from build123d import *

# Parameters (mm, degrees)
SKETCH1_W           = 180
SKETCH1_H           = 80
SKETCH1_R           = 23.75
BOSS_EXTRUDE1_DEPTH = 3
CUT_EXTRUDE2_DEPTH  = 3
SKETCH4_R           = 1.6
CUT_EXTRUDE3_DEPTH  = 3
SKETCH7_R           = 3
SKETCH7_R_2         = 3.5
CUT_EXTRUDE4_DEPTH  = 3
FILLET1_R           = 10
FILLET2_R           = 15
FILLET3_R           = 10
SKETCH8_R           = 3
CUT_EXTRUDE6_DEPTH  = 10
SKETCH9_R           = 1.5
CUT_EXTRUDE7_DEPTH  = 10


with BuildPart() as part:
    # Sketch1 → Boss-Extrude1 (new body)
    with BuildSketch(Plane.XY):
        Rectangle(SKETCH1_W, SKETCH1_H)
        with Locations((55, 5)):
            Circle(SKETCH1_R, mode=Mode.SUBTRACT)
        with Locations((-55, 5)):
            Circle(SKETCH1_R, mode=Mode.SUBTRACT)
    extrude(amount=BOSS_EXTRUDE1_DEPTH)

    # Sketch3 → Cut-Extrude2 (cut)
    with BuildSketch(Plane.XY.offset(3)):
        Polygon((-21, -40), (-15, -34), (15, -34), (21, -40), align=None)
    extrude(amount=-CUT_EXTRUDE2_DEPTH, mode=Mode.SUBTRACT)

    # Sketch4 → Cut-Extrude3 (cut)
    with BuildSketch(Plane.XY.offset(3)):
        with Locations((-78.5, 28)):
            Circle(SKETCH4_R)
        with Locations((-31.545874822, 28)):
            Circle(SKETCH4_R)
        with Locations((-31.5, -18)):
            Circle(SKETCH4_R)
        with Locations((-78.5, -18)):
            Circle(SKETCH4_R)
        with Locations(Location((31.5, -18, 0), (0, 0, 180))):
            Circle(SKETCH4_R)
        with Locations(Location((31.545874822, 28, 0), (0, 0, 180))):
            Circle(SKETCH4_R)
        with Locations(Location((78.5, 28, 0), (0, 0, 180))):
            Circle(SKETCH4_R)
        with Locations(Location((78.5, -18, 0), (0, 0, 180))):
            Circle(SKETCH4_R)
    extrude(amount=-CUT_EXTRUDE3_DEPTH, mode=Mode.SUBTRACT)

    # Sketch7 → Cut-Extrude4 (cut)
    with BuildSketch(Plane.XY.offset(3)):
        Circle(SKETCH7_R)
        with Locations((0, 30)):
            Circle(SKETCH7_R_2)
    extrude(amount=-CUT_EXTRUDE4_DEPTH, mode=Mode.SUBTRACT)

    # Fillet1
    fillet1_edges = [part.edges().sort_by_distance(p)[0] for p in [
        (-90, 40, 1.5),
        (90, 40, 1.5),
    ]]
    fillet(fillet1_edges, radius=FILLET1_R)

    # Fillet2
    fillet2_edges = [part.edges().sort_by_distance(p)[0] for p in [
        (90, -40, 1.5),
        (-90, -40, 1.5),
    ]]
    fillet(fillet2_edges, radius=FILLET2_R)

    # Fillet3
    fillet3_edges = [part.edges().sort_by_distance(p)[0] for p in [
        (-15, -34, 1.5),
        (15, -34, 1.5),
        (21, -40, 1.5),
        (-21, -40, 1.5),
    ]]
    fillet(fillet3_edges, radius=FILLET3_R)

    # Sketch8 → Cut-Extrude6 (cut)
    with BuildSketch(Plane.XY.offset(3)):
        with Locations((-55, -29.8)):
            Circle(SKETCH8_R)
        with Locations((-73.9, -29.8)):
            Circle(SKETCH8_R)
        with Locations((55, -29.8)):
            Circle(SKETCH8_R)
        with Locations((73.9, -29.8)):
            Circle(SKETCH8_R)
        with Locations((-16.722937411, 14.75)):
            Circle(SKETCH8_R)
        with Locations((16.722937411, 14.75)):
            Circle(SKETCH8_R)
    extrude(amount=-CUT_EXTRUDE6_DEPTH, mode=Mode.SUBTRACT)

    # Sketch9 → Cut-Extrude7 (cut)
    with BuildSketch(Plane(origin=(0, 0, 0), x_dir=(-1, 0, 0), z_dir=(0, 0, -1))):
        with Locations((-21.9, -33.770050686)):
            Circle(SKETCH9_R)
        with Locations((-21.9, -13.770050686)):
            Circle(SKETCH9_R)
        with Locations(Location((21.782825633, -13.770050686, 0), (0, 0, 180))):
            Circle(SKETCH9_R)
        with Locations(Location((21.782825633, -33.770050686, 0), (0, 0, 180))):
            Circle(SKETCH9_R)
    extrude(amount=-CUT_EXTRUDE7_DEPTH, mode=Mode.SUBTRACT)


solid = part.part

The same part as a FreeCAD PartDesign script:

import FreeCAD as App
import Part
import Sketcher

V = App.Vector


def edges_at(feature, points):
    """Names of the edges that pass closest to the given points."""
    edges = feature.Shape.Edges
    near = lambda p: min(range(len(edges)), key=lambda i: edges[i].distToShape(Part.Vertex(*p))[0])
    return sorted({f"Edge{near(p) + 1}" for p in points})

doc = App.newDocument("Part")
params = doc.addObject("Spreadsheet::Sheet", "Params")
for row, (alias, value) in enumerate([
    ("sketch1_diameter", "47.5 mm"),
    ("sketch1_width", "180 mm"),
    ("sketch1_height", "80 mm"),
    ("pad1_length", "3 mm"),
    ("sketch2_width", "42 mm"),
    ("sketch2_width2", "30 mm"),
    ("pocket1_length", "3 mm"),
    ("sketch3_diameter", "3.2 mm"),
    ("pocket2_length", "3 mm"),
    ("sketch4_diameter", "6 mm"),
    ("sketch4_diameter2", "7 mm"),
    ("pocket3_length", "3 mm"),
    ("fillet_radius", "10 mm"),
    ("fillet2_radius", "15 mm"),
    ("fillet3_radius", "10 mm"),
    ("sketch5_diameter", "6 mm"),
    ("pocket4_length", "10 mm"),
    ("sketch6_diameter", "3 mm"),
    ("pocket5_length", "10 mm"),
], start=1):
    params.set(f"A{row}", alias)
    params.set(f"B{row}", "=" + value)
    params.setAlias(f"B{row}", alias)

body = doc.addObject("PartDesign::Body", "Body")

sketch1 = body.newObject("Sketcher::SketchObject", "Sketch")
sketch1.AttachmentSupport = (doc.getObject("XY_Plane"), [""])
sketch1.MapMode = "FlatFace"
sketch1.addGeometry([
    Part.LineSegment(V(-90, 40, 0), V(-90, -40, 0)),
    Part.LineSegment(V(-90, -40, 0), V(90, -40, 0)),
    Part.LineSegment(V(90, -40, 0), V(90, 40, 0)),
    Part.LineSegment(V(90, 40, 0), V(-90, 40, 0)),
    Part.Circle(V(-55, 5, 0), V(0, 0, 1), 23.75),
    Part.Circle(V(55, 5, 0), V(0, 0, 1), 23.75),
], False)
sketch1.addConstraint([
    Sketcher.Constraint("Coincident", 0, 2, 1, 1),
    Sketcher.Constraint("Coincident", 1, 2, 2, 1),
    Sketcher.Constraint("Coincident", 2, 2, 3, 1),
    Sketcher.Constraint("Coincident", 3, 2, 0, 1),
    Sketcher.Constraint("Vertical", 0),
    Sketcher.Constraint("Horizontal", 1),
    Sketcher.Constraint("Vertical", 2),
    Sketcher.Constraint("Horizontal", 3),
    Sketcher.Constraint("Equal", 4, 5),
    Sketcher.Constraint("Symmetric", 0, 2, 2, 2, -1, 1),
    Sketcher.Constraint("Symmetric", 4, 3, 5, 3, -2),
    Sketcher.Constraint("Diameter", 4, 47.5),
    Sketcher.Constraint("DistanceX", 1, 1, 1, 2, 180.0),
    Sketcher.Constraint("DistanceY", 0, 2, 0, 1, 80.0),
    Sketcher.Constraint("DistanceX", 4, 3, -1, 1, 55.0),
    Sketcher.Constraint("DistanceY", -1, 1, 4, 3, 5.0),
])
sketch1.setExpression("Constraints[11]", "Params.sketch1_diameter")
sketch1.setExpression("Constraints[12]", "Params.sketch1_width")
sketch1.setExpression("Constraints[13]", "Params.sketch1_height")
pad1 = body.newObject("PartDesign::Pad", "Pad")
pad1.Profile = sketch1
pad1.setExpression("Length", "Params.pad1_length")

sketch2 = body.newObject("Sketcher::SketchObject", "Sketch001")
sketch2.AttachmentSupport = (doc.getObject("XY_Plane"), [""])
sketch2.MapMode = "FlatFace"
sketch2.AttachmentOffset = App.Placement(V(0, 0, 3), App.Rotation())
sketch2.addGeometry([
    Part.LineSegment(V(-15, -34, 0), V(-21, -40, 0)),
    Part.LineSegment(V(-21, -40, 0), V(21, -40, 0)),
    Part.LineSegment(V(21, -40, 0), V(15, -34, 0)),
    Part.LineSegment(V(15, -34, 0), V(-15, -34, 0)),
], False)
sketch2.addConstraint([
    Sketcher.Constraint("Coincident", 0, 2, 1, 1),
    Sketcher.Constraint("Coincident", 1, 2, 2, 1),
    Sketcher.Constraint("Coincident", 2, 2, 3, 1),
    Sketcher.Constraint("Coincident", 3, 2, 0, 1),
    Sketcher.Constraint("Horizontal", 1),
    Sketcher.Constraint("Horizontal", 3),
    Sketcher.Constraint("Perpendicular", 0, 2),
    Sketcher.Constraint("Equal", 0, 2),
    Sketcher.Constraint("DistanceX", 1, 1, 1, 2, 42.0),
    Sketcher.Constraint("DistanceX", 3, 2, 3, 1, 30.0),
    Sketcher.Constraint("DistanceX", 0, 2, -1, 1, 21.0),
    Sketcher.Constraint("DistanceY", 0, 2, -1, 1, 40.0),
])
sketch2.setExpression("Constraints[8]", "Params.sketch2_width")
sketch2.setExpression("Constraints[9]", "Params.sketch2_width2")
pocket1 = body.newObject("PartDesign::Pocket", "Pocket")
pocket1.Profile = sketch2
pocket1.setExpression("Length", "Params.pocket1_length")

sketch3 = body.newObject("Sketcher::SketchObject", "Sketch002")
sketch3.AttachmentSupport = (doc.getObject("XY_Plane"), [""])
sketch3.MapMode = "FlatFace"
sketch3.AttachmentOffset = App.Placement(V(0, 0, 3), App.Rotation())
sketch3.addGeometry([
    Part.Circle(V(-78.5, 28, 0), V(0, 0, 1), 1.6),
    Part.Circle(V(-31.545875, 28, 0), V(0, 0, 1), 1.6),
    Part.Circle(V(-31.5, -18, 0), V(0, 0, 1), 1.6),
    Part.Circle(V(-78.5, -18, 0), V(0, 0, 1), 1.6),
    Part.Circle(V(31.5, -18, 0), V(0, 0, 1), 1.6),
    Part.Circle(V(31.545875, 28, 0), V(0, 0, 1), 1.6),
    Part.Circle(V(78.5, 28, 0), V(0, 0, 1), 1.6),
    Part.Circle(V(78.5, -18, 0), V(0, 0, 1), 1.6),
], False)
sketch3.addConstraint([
    Sketcher.Constraint("Equal", 0, 1),
    Sketcher.Constraint("Equal", 1, 2),
    Sketcher.Constraint("Equal", 2, 3),
    Sketcher.Constraint("Equal", 3, 4),
    Sketcher.Constraint("Equal", 4, 5),
    Sketcher.Constraint("Equal", 5, 6),
    Sketcher.Constraint("Equal", 6, 7),
    Sketcher.Constraint("Symmetric", 2, 3, 4, 3, -2),
    Sketcher.Constraint("Symmetric", 1, 3, 5, 3, -2),
    Sketcher.Constraint("Symmetric", 0, 3, 6, 3, -2),
    Sketcher.Constraint("Symmetric", 3, 3, 7, 3, -2),
    Sketcher.Constraint("Horizontal", 0, 3, 1, 3),
    Sketcher.Constraint("Horizontal", 2, 3, 3, 3),
    Sketcher.Constraint("Vertical", 0, 3, 3, 3),
    Sketcher.Constraint("Diameter", 0, 3.2),
    Sketcher.Constraint("DistanceY", -1, 1, 0, 3, 28.0),
    Sketcher.Constraint("DistanceY", 2, 3, -1, 1, 18.0),
    Sketcher.Constraint("DistanceX", 0, 3, 2, 3, 47.0),
    Sketcher.Constraint("DistanceX", 2, 3, 4, 3, 63.0),
    Sketcher.Constraint("DistanceX", 1, 3, 5, 3, 63.09175),
])
sketch3.setExpression("Constraints[14]", "Params.sketch3_diameter")
pocket2 = body.newObject("PartDesign::Pocket", "Pocket001")
pocket2.Profile = sketch3
pocket2.setExpression("Length", "Params.pocket2_length")

sketch4 = body.newObject("Sketcher::SketchObject", "Sketch003")
sketch4.AttachmentSupport = (doc.getObject("XY_Plane"), [""])
sketch4.MapMode = "FlatFace"
sketch4.AttachmentOffset = App.Placement(V(0, 0, 3), App.Rotation())
sketch4.addGeometry([
    Part.Circle(V(0, 0, 0), V(0, 0, 1), 3),
    Part.Circle(V(0, 30, 0), V(0, 0, 1), 3.5),
], False)
sketch4.addConstraint([
    Sketcher.Constraint("Coincident", 0, 3, -1, 1),
    Sketcher.Constraint("PointOnObject", 1, 3, -2),
    Sketcher.Constraint("Diameter", 0, 6.0),
    Sketcher.Constraint("Diameter", 1, 7.0),
    Sketcher.Constraint("DistanceY", -1, 1, 1, 3, 30.0),
])
sketch4.setExpression("Constraints[2]", "Params.sketch4_diameter")
sketch4.setExpression("Constraints[3]", "Params.sketch4_diameter2")
pocket3 = body.newObject("PartDesign::Pocket", "Pocket002")
pocket3.Profile = sketch4
pocket3.setExpression("Length", "Params.pocket3_length")
doc.recompute()

fillet = body.newObject("PartDesign::Fillet", "Fillet")
fillet.Base = (pocket3, edges_at(pocket3, [(-90, 40, 1.5), (90, 40, 1.5)]))
fillet.setExpression("Radius", "Params.fillet_radius")
doc.recompute()

fillet2 = body.newObject("PartDesign::Fillet", "Fillet001")
fillet2.Base = (fillet, edges_at(fillet, [(90, -40, 1.5), (-90, -40, 1.5)]))
fillet2.setExpression("Radius", "Params.fillet2_radius")
doc.recompute()

fillet3 = body.newObject("PartDesign::Fillet", "Fillet002")
fillet3.Base = (fillet2, edges_at(fillet2, [
    (-15, -34, 1.5),
    (15, -34, 1.5),
    (21, -40, 1.5),
    (-21, -40, 1.5),
]))
fillet3.setExpression("Radius", "Params.fillet3_radius")

sketch5 = body.newObject("Sketcher::SketchObject", "Sketch004")
sketch5.AttachmentSupport = (doc.getObject("XY_Plane"), [""])
sketch5.MapMode = "FlatFace"
sketch5.AttachmentOffset = App.Placement(V(0, 0, 3), App.Rotation())
sketch5.addGeometry([
    Part.Circle(V(-55, -29.8, 0), V(0, 0, 1), 3),
    Part.Circle(V(-73.9, -29.8, 0), V(0, 0, 1), 3),
    Part.Circle(V(55, -29.8, 0), V(0, 0, 1), 3),
    Part.Circle(V(73.9, -29.8, 0), V(0, 0, 1), 3),
    Part.Circle(V(-16.722937, 14.75, 0), V(0, 0, 1), 3),
    Part.Circle(V(16.722937, 14.75, 0), V(0, 0, 1), 3),
], False)
sketch5.addConstraint([
    Sketcher.Constraint("Equal", 0, 1),
    Sketcher.Constraint("Equal", 1, 2),
    Sketcher.Constraint("Equal", 2, 3),
    Sketcher.Constraint("Equal", 3, 4),
    Sketcher.Constraint("Equal", 4, 5),
    Sketcher.Constraint("Symmetric", 0, 3, 2, 3, -2),
    Sketcher.Constraint("Symmetric", 1, 3, 3, 3, -2),
    Sketcher.Constraint("Symmetric", 4, 3, 5, 3, -2),
    Sketcher.Constraint("Horizontal", 0, 3, 1, 3),
    Sketcher.Constraint("Diameter", 0, 6.0),
    Sketcher.Constraint("DistanceX", 0, 3, -1, 1, 55.0),
    Sketcher.Constraint("DistanceY", 0, 3, -1, 1, 29.8),
    Sketcher.Constraint("DistanceX", 1, 3, -1, 1, 73.9),
    Sketcher.Constraint("DistanceY", -1, 1, 4, 3, 14.75),
    Sketcher.Constraint("DistanceX", 4, 3, -1, 1, 16.722937),
])
sketch5.setExpression("Constraints[9]", "Params.sketch5_diameter")
pocket4 = body.newObject("PartDesign::Pocket", "Pocket003")
pocket4.Profile = sketch5
pocket4.setExpression("Length", "Params.pocket4_length")

sketch6 = body.newObject("Sketcher::SketchObject", "Sketch005")
sketch6.AttachmentSupport = (doc.getObject("XY_Plane"), [""])
sketch6.MapMode = "FlatFace"
sketch6.addGeometry([
    Part.Circle(V(21.9, -33.770051, 0), V(0, 0, 1), 1.5),
    Part.Circle(V(21.9, -13.770051, 0), V(0, 0, 1), 1.5),
    Part.Circle(V(-21.782826, -13.770051, 0), V(0, 0, 1), 1.5),
    Part.Circle(V(-21.782826, -33.770051, 0), V(0, 0, 1), 1.5),
], False)
sketch6.addConstraint([
    Sketcher.Constraint("Equal", 0, 1),
    Sketcher.Constraint("Equal", 1, 2),
    Sketcher.Constraint("Equal", 2, 3),
    Sketcher.Constraint("Horizontal", 1, 3, 2, 3),
    Sketcher.Constraint("Horizontal", 0, 3, 3, 3),
    Sketcher.Constraint("Vertical", 0, 3, 1, 3),
    Sketcher.Constraint("Vertical", 2, 3, 3, 3),
    Sketcher.Constraint("Diameter", 0, 3.0),
    Sketcher.Constraint("DistanceY", 0, 3, 1, 3, 20.0),
    Sketcher.Constraint("DistanceX", -1, 1, 0, 3, 21.9),
    Sketcher.Constraint("DistanceY", 0, 3, -1, 1, 33.770051),
    Sketcher.Constraint("DistanceX", 2, 3, -1, 1, 21.782826),
])
sketch6.setExpression("Constraints[7]", "Params.sketch6_diameter")
pocket5 = body.newObject("PartDesign::Pocket", "Pocket004")
pocket5.Profile = sketch6
pocket5.setExpression("Length", "Params.pocket5_length")
pocket5.Reversed = True

doc.recompute()
